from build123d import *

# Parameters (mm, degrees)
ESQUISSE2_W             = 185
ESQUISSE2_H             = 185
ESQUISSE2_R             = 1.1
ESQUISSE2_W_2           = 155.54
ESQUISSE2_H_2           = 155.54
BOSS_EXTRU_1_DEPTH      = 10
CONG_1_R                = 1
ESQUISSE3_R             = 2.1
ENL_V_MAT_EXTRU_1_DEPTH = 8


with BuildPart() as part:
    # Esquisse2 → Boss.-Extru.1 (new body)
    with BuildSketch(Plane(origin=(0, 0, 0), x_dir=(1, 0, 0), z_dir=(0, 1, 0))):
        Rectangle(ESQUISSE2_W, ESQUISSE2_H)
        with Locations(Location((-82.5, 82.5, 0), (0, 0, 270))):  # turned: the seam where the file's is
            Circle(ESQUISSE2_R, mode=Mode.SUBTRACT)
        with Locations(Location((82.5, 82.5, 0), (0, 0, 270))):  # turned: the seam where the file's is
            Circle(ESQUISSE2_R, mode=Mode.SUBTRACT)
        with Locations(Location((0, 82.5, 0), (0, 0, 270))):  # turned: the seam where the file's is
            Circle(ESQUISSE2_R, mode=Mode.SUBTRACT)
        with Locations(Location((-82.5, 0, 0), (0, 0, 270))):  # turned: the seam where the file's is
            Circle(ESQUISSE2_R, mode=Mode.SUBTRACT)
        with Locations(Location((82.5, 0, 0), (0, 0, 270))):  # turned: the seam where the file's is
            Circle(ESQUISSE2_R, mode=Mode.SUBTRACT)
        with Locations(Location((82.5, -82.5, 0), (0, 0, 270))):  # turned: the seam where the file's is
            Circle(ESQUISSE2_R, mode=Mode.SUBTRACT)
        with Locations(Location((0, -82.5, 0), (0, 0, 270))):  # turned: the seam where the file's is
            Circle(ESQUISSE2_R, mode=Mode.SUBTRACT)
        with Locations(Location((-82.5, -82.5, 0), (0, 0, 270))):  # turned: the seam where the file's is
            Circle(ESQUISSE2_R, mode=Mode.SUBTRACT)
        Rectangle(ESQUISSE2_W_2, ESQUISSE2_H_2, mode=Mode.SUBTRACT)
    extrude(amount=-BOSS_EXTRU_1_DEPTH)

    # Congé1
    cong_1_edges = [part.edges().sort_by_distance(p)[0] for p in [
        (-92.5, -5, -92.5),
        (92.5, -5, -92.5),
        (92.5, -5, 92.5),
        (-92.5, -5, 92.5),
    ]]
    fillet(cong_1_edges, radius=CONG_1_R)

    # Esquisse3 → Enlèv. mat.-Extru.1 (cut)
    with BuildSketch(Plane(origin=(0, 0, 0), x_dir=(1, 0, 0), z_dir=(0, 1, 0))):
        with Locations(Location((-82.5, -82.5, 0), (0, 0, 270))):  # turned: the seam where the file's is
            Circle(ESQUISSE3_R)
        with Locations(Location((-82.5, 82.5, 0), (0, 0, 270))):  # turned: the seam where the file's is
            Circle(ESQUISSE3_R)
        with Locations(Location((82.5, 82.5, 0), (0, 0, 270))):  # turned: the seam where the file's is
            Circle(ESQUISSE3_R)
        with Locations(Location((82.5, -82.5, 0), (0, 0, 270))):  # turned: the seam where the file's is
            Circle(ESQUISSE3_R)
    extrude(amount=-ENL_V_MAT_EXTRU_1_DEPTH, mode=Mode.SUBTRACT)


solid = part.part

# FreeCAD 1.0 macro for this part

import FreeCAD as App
import Part
import Sketcher


def edges_at(feature, points):
    """Names of the edges that pass closest to the given points."""
    edges = feature.Shape.Edges
    near = lambda p: min(range(len(edges)), key=lambda i: edges[i].distToShape(Part.Vertex(*p))[0])
    return sorted({f"Edge{near(p) + 1}" for p in points})


def add_polygon(sketch, points):
    """Adds a closed chain of lines whose ends are joined by coincident constraints."""
    first, n = sketch.GeometryCount, len(points)
    for a, b in zip(points, points[1:] + points[:1]):
        sketch.addGeometry(Part.LineSegment(App.Vector(*a, 0), App.Vector(*b, 0)), False)
    for i in range(n):
        sketch.addConstraint(Sketcher.Constraint("Coincident", first + i, 2, first + (i + 1) % n, 1))

doc = App.newDocument("Part")
body = doc.addObject("PartDesign::Body", "Body")

# Sketch on XZ plane
sketch1 = doc.addObject("Sketcher::SketchObject", "Sketch")
body.addObject(sketch1)
sketch1.AttachmentSupport = (doc.XZ_Plane, [""])
sketch1.MapMode = "FlatFace"
add_polygon(sketch1, [(-92.5, -92.5), (-92.5, 92.5), (92.5, 92.5), (92.5, -92.5)])  # lines 0-3
sketch1.addGeometry(Part.Circle(App.Vector(-82.5, 82.5, 0), App.Vector(0, 0, 1), 1.1), False)  # 4
sketch1.addGeometry(Part.Circle(App.Vector(0, 82.5, 0), App.Vector(0, 0, 1), 1.1), False)  # 5
sketch1.addGeometry(Part.Circle(App.Vector(-82.5, 0, 0), App.Vector(0, 0, 1), 1.1), False)  # 6
add_polygon(sketch1, [(77.77, 77.77), (-77.77, 77.77), (-77.77, -77.77), (77.77, -77.77)])  # lines 7-10
sketch1.addGeometry(Part.Circle(App.Vector(82.5, 82.5, 0), App.Vector(0, 0, 1), 1.1), False)  # 11
sketch1.addGeometry(Part.Circle(App.Vector(82.5, 0, 0), App.Vector(0, 0, 1), 1.1), False)  # 12
sketch1.addGeometry(Part.Circle(App.Vector(-82.5, -82.5, 0), App.Vector(0, 0, 1), 1.1), False)  # 13
sketch1.addGeometry(Part.Circle(App.Vector(0, -82.5, 0), App.Vector(0, 0, 1), 1.1), False)  # 14
sketch1.addGeometry(Part.Circle(App.Vector(82.5, -82.5, 0), App.Vector(0, 0, 1), 1.1), False)  # 15
sketch1.addConstraint([
    Sketcher.Constraint("Vertical", 0),
    Sketcher.Constraint("Horizontal", 1),
    Sketcher.Constraint("Vertical", 2),
    Sketcher.Constraint("Horizontal", 3),
    Sketcher.Constraint("Horizontal", 7),
    Sketcher.Constraint("Vertical", 8),
    Sketcher.Constraint("Horizontal", 9),
    Sketcher.Constraint("Vertical", 10),
    Sketcher.Constraint("Equal", 4, 5),
    Sketcher.Constraint("Equal", 5, 6),
    Sketcher.Constraint("Equal", 6, 11),
    Sketcher.Constraint("Equal", 11, 12),
    Sketcher.Constraint("Equal", 12, 13),
    Sketcher.Constraint("Equal", 13, 14),
    Sketcher.Constraint("Equal", 14, 15),
    Sketcher.Constraint("Symmetric", 6, 3, 12, 3, -1, 1),
    Sketcher.Constraint("Symmetric", 11, 3, 13, 3, -1, 1),
    Sketcher.Constraint("Symmetric", 5, 3, 14, 3, -1, 1),
    Sketcher.Constraint("Symmetric", 4, 3, 15, 3, -1, 1),
    Sketcher.Constraint("Symmetric", 0, 2, 2, 2, -1, 1),
    Sketcher.Constraint("Symmetric", 7, 2, 9, 2, -1, 1),
    Sketcher.Constraint("Symmetric", 4, 3, 11, 3, -2),
    Sketcher.Constraint("PointOnObject", 5, 3, -2),
    Sketcher.Constraint("PointOnObject", 6, 3, -1),
    Sketcher.Constraint("Horizontal", 4, 3, 5, 3),
    Sketcher.Constraint("Vertical", 4, 3, 6, 3),
    Sketcher.Constraint("Equal", 3, 0),
    Sketcher.Constraint("Equal", 9, 8),
    Sketcher.Constraint("Diameter", 4, 2.2),
    Sketcher.Constraint("DistanceX", 1, 1, 1, 2, 185.0),
    Sketcher.Constraint("DistanceX", 4, 3, 11, 3, 165.0),
    Sketcher.Constraint("DistanceY", 13, 3, 4, 3, 165.0),
    Sketcher.Constraint("DistanceX", 7, 2, 7, 1, 155.54),
])
pad1 = doc.addObject("PartDesign::Pad", "Pad")
body.addObject(pad1)
pad1.Profile = sketch1
pad1.Length = 10
doc.recompute()

fillet = doc.addObject("PartDesign::Fillet", "Fillet")
body.addObject(fillet)
fillet.Base = (pad1, edges_at(pad1, [
    (-92.5, -5, -92.5),
    (92.5, -5, -92.5),
    (92.5, -5, 92.5),
    (-92.5, -5, 92.5),
]))
fillet.Radius = 1

# Sketch on XZ plane
sketch2 = doc.addObject("Sketcher::SketchObject", "Sketch001")
body.addObject(sketch2)
sketch2.AttachmentSupport = (doc.XZ_Plane, [""])
sketch2.MapMode = "FlatFace"
sketch2.addGeometry([
    Part.Circle(App.Vector(-82.5, 82.5, 0), App.Vector(0, 0, 1), 2.1),
    Part.Circle(App.Vector(-82.5, -82.5, 0), App.Vector(0, 0, 1), 2.1),
    Part.Circle(App.Vector(82.5, -82.5, 0), App.Vector(0, 0, 1), 2.1),
    Part.Circle(App.Vector(82.5, 82.5, 0), App.Vector(0, 0, 1), 2.1),
], False)
sketch2.addConstraint([
    Sketcher.Constraint("Equal", 0, 1),
    Sketcher.Constraint("Equal", 1, 2),
    Sketcher.Constraint("Equal", 2, 3),
    Sketcher.Constraint("Symmetric", 0, 3, 2, 3, -1, 1),
    Sketcher.Constraint("Symmetric", 1, 3, 3, 3, -1, 1),
    Sketcher.Constraint("Symmetric", 1, 3, 2, 3, -2),
    Sketcher.Constraint("Diameter", 0, 4.2),
    Sketcher.Constraint("DistanceY", 1, 3, 0, 3, 165.0),
    Sketcher.Constraint("DistanceX", 1, 3, 2, 3, 165.0),
])
pocket1 = doc.addObject("PartDesign::Pocket", "Pocket")
body.addObject(pocket1)
pocket1.Profile = sketch2
pocket1.Length = 8
pocket1.Reversed = True

doc.recompute()
